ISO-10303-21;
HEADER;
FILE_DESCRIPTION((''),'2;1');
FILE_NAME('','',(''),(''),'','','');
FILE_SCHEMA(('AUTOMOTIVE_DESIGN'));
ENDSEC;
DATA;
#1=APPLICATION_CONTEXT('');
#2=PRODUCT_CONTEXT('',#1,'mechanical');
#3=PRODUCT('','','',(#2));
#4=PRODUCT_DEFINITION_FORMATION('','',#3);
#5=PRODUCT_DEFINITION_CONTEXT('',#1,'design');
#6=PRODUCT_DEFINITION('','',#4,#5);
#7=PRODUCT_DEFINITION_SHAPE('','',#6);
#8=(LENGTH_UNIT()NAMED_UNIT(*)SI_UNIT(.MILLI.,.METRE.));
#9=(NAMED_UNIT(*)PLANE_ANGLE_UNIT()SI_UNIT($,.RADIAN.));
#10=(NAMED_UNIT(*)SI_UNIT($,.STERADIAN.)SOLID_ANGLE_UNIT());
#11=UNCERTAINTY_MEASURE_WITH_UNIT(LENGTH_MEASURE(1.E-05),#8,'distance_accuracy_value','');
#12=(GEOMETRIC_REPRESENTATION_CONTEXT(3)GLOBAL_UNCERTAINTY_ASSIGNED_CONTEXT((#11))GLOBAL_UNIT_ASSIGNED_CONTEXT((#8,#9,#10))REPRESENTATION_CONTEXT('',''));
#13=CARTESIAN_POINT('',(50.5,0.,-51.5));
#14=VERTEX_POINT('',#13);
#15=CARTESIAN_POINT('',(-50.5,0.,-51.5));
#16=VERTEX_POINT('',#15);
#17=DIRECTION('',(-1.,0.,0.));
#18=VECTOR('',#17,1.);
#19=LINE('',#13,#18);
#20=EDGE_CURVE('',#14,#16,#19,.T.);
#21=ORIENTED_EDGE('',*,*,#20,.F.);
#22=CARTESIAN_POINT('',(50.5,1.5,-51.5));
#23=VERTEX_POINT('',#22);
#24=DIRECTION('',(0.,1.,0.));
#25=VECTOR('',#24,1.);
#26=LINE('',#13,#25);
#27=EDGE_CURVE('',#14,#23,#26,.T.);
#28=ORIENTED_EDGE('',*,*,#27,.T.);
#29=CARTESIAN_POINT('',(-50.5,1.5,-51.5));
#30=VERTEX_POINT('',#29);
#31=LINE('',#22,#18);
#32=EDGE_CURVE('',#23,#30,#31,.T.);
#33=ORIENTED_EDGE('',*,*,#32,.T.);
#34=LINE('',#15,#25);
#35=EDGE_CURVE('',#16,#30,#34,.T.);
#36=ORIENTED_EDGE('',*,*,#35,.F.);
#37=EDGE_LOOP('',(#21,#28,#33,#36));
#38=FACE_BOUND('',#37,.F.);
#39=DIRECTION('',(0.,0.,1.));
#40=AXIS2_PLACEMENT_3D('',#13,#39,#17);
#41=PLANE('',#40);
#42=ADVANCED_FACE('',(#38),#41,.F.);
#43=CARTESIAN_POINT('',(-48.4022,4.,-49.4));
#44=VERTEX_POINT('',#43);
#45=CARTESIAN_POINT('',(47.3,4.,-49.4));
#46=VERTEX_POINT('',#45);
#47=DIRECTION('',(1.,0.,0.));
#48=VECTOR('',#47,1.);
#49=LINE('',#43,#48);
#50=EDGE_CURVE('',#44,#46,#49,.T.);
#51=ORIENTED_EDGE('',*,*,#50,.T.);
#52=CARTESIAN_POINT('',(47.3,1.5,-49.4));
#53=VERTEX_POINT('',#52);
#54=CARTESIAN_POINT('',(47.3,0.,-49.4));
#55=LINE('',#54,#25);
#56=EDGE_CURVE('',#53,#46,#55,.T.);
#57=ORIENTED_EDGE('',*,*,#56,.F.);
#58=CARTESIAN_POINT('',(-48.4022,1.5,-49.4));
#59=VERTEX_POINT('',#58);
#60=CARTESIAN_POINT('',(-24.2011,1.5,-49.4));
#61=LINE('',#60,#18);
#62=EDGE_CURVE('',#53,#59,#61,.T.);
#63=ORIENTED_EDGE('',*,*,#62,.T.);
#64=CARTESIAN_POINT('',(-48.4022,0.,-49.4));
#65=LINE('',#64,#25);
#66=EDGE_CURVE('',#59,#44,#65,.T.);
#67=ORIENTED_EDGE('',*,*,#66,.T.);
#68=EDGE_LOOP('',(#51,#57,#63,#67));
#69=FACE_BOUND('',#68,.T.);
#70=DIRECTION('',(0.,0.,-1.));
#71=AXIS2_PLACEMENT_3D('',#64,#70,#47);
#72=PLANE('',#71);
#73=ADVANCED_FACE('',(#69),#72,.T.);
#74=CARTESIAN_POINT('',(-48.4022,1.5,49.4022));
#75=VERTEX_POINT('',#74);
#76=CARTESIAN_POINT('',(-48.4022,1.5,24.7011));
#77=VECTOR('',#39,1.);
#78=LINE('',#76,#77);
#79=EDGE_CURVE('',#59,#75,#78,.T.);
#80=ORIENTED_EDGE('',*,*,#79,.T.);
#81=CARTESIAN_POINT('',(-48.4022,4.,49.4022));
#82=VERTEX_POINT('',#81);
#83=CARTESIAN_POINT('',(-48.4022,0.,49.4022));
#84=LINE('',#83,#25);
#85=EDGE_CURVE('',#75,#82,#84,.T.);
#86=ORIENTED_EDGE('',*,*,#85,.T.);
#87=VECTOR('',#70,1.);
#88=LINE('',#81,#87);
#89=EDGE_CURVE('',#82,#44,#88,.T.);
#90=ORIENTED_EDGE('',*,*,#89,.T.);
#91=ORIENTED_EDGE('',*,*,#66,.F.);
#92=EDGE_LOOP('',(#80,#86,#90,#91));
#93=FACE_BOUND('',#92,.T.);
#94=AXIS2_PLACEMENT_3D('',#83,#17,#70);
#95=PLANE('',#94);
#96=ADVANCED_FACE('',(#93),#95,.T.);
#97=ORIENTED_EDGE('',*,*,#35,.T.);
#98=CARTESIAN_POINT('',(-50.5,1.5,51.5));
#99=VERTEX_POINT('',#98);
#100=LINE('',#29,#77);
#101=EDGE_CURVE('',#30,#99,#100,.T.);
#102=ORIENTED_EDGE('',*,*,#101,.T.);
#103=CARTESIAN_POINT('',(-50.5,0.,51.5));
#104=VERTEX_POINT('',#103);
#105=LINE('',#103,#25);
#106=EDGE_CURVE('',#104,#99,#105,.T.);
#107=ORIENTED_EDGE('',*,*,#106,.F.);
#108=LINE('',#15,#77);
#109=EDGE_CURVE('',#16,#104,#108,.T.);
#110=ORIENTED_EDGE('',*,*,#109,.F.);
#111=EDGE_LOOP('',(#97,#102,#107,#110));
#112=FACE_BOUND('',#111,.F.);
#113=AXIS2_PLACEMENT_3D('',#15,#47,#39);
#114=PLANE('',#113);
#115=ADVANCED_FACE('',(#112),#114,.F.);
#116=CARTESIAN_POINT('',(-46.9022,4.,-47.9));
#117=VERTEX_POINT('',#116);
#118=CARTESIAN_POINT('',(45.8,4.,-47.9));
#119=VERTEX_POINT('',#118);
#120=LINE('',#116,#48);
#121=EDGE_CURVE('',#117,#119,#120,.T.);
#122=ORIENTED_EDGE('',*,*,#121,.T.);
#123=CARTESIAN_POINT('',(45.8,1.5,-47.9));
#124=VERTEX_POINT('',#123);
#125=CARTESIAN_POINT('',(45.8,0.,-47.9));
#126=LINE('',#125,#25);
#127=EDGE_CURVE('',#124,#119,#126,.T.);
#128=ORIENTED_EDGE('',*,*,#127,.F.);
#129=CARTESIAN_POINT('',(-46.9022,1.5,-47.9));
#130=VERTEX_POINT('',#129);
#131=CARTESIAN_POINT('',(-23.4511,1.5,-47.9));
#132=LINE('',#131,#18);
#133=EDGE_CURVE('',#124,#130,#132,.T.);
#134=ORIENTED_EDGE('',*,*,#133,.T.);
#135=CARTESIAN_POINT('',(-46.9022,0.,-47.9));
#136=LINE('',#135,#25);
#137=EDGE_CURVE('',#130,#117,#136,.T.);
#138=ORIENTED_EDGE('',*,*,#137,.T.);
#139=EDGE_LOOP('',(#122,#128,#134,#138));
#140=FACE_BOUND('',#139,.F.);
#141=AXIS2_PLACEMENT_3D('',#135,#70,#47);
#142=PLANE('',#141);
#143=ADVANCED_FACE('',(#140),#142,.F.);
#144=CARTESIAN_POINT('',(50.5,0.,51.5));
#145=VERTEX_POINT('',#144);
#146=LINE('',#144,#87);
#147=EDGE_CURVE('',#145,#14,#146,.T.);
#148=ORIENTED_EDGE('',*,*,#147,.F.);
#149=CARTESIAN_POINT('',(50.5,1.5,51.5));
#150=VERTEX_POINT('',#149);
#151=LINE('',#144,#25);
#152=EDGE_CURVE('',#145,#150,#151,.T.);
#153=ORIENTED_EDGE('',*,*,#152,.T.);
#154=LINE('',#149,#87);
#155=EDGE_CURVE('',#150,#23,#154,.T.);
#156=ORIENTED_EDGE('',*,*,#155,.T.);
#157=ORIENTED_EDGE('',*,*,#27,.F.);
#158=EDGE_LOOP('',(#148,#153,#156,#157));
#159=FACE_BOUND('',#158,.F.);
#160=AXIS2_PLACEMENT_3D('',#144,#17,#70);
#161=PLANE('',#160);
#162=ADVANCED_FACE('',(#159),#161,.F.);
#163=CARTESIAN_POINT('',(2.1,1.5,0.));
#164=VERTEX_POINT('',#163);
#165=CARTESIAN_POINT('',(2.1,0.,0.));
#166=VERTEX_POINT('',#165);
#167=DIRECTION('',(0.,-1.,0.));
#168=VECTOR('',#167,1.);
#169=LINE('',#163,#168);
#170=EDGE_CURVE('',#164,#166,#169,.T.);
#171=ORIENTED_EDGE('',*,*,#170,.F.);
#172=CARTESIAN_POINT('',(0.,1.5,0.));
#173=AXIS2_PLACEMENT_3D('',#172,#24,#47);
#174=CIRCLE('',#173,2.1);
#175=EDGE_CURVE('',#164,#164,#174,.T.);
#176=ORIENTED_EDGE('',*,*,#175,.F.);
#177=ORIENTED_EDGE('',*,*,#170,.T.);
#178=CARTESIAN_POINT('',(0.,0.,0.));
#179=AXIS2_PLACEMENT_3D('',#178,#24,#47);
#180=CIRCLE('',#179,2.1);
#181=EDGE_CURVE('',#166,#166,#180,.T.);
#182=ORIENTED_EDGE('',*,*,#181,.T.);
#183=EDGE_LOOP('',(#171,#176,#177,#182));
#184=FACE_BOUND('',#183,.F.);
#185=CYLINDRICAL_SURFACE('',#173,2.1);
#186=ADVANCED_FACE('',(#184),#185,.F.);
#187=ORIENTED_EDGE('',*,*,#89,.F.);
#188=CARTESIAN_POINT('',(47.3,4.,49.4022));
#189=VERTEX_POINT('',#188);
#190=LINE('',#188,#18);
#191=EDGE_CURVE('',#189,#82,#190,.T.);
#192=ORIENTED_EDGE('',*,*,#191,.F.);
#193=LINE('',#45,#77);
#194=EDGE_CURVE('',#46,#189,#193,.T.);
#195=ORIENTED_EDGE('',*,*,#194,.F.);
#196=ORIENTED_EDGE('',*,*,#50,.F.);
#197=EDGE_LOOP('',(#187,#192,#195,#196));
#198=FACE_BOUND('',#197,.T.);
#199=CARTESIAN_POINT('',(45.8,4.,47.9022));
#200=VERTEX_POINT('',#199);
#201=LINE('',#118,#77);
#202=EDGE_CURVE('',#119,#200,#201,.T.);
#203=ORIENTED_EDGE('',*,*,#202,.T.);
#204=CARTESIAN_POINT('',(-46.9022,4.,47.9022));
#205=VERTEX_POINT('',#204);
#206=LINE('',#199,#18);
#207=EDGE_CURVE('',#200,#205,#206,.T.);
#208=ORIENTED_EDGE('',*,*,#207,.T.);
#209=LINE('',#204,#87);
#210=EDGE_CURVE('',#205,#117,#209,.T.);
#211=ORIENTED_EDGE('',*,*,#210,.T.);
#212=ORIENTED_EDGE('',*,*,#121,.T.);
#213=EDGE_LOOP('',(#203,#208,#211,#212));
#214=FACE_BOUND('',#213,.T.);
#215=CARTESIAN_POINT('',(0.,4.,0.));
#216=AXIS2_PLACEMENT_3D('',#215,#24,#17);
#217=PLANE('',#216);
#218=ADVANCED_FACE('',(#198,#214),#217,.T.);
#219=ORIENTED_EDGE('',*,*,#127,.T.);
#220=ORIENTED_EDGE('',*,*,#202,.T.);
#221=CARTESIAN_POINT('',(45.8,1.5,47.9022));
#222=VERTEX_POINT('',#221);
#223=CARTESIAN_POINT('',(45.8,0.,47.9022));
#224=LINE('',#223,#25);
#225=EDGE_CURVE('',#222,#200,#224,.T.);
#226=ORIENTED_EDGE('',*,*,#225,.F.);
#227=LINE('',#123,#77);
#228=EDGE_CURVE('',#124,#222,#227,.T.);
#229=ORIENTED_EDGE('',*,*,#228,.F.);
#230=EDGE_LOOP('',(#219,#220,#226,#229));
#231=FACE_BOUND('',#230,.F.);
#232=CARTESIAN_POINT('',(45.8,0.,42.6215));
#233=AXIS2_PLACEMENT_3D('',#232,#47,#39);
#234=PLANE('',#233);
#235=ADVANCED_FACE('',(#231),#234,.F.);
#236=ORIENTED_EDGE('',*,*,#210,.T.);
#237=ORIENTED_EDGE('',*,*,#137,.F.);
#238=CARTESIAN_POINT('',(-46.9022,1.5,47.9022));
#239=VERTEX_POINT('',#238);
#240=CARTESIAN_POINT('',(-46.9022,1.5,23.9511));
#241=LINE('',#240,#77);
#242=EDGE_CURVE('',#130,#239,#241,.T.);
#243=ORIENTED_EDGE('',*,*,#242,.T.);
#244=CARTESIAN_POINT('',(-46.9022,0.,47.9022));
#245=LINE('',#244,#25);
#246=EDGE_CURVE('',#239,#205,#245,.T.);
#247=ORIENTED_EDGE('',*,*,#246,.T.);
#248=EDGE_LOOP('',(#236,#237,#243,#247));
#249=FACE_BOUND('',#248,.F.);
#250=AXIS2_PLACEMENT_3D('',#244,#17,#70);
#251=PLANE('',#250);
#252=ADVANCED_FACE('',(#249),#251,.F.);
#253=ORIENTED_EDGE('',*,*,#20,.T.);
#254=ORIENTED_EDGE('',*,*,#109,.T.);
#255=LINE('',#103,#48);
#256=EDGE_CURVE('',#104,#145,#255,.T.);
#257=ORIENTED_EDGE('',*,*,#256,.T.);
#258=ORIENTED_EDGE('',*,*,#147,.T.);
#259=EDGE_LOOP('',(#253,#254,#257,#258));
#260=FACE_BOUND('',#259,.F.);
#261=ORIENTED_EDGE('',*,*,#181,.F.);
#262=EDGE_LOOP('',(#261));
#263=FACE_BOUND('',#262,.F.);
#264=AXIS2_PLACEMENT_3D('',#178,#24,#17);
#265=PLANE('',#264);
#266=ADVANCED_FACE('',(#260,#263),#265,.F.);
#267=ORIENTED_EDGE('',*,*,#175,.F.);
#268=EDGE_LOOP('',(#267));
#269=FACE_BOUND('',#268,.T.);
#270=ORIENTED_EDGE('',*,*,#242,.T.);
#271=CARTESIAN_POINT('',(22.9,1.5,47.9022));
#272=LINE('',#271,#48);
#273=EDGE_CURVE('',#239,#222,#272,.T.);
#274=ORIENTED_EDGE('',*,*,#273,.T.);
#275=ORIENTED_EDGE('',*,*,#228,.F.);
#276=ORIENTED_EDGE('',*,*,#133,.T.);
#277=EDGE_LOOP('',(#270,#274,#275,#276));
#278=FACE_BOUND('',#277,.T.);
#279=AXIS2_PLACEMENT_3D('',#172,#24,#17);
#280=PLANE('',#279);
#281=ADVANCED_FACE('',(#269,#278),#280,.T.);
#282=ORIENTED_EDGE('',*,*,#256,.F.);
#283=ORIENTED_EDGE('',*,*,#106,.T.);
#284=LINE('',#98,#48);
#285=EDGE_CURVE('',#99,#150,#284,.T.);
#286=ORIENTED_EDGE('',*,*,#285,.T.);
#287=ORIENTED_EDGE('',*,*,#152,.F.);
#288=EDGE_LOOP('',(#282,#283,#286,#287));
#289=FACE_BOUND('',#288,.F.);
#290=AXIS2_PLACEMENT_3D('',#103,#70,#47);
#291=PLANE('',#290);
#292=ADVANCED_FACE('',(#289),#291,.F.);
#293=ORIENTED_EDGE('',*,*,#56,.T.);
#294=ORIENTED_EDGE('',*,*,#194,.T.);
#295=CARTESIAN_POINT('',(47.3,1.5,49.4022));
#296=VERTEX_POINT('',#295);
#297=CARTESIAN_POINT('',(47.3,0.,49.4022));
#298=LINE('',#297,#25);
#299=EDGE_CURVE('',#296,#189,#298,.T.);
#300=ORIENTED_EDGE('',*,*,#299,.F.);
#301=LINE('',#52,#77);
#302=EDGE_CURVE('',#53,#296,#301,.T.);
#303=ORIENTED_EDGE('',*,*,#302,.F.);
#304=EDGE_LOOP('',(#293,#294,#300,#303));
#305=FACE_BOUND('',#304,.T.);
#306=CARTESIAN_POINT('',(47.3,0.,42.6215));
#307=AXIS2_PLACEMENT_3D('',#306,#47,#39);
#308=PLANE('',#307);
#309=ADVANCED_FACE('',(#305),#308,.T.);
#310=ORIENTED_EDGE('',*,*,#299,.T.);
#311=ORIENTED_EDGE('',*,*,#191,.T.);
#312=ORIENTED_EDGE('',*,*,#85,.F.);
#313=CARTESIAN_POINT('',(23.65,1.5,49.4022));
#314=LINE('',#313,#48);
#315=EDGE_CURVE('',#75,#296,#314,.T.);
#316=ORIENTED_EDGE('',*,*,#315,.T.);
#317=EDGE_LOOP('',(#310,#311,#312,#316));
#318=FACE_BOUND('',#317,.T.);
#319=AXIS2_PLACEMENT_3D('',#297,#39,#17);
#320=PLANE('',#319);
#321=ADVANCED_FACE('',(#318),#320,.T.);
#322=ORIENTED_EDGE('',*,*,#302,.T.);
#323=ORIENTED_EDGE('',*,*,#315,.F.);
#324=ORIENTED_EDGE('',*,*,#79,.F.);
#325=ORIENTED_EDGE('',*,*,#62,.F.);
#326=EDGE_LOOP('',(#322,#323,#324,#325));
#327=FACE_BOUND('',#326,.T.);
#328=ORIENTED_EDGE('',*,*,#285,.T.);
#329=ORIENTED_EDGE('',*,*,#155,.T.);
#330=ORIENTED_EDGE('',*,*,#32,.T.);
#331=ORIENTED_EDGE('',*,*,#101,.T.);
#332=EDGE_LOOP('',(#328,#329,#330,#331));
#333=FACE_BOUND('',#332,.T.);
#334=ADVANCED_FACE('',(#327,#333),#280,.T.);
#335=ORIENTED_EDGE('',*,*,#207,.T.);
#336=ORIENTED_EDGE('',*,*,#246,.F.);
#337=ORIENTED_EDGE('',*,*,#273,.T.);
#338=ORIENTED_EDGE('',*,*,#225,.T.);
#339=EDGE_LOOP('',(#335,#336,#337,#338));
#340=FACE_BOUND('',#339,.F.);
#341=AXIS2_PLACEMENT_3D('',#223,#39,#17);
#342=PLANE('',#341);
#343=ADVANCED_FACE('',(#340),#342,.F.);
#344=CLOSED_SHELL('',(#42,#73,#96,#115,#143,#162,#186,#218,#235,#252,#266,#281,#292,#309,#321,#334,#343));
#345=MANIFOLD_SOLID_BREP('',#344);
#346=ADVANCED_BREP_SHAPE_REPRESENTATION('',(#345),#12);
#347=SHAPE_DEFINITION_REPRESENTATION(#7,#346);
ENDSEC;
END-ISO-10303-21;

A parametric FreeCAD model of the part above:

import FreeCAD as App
import Part
import Sketcher
from FreeCAD import Vector

doc = App.newDocument("Part")
body = doc.addObject("PartDesign::Body", "Body")

sketch1 = doc.addObject("Sketcher::SketchObject", "Sketch")
body.addObject(sketch1)
sketch1.AttachmentSupport = (doc.XZ_Plane, [""])
sketch1.MapMode = "FlatFace"
sketch1.addGeometry([
    Part.LineSegment(Vector(-50.5, -51.5, 0), Vector(-50.5, 51.5, 0)),
    Part.LineSegment(Vector(-50.5, 51.5, 0), Vector(50.5, 51.5, 0)),
    Part.LineSegment(Vector(50.5, 51.5, 0), Vector(50.5, -51.5, 0)),
    Part.LineSegment(Vector(50.5, -51.5, 0), Vector(-50.5, -51.5, 0)),
], False)
sketch1.addConstraint([
    Sketcher.Constraint("Coincident", 0, 2, 1, 1),
    Sketcher.Constraint("Coincident", 1, 2, 2, 1),
    Sketcher.Constraint("Coincident", 2, 2, 3, 1),
    Sketcher.Constraint("Coincident", 3, 2, 0, 1),
    Sketcher.Constraint("Vertical", 0),
    Sketcher.Constraint("Horizontal", 1),
    Sketcher.Constraint("Vertical", 2),
    Sketcher.Constraint("Horizontal", 3),
    Sketcher.Constraint("Symmetric", 0, 2, 2, 2, -1, 1),
    Sketcher.Constraint("DistanceX", 1, 1, 1, 2, 101.0),
    Sketcher.Constraint("DistanceY", 0, 1, 0, 2, 103.0),
])
pad1 = doc.addObject("PartDesign::Pad", "Pad")
body.addObject(pad1)
pad1.Profile = sketch1
pad1.Length = 1.5
pad1.Reversed = True

sketch2 = doc.addObject("Sketcher::SketchObject", "Sketch001")
body.addObject(sketch2)
sketch2.AttachmentSupport = (doc.XZ_Plane, [""])
sketch2.MapMode = "FlatFace"
sketch2.addGeometry([
    Part.LineSegment(Vector(47.3, -49.4, 0), Vector(-48.4022, -49.4, 0)),
    Part.LineSegment(Vector(-48.4022, -49.4, 0), Vector(-48.4022, 49.4022, 0)),
    Part.LineSegment(Vector(-48.4022, 49.4022, 0), Vector(47.3, 49.4022, 0)),
    Part.LineSegment(Vector(47.3, 49.4022, 0), Vector(47.3, -49.4, 0)),
    Part.LineSegment(Vector(-46.9022, 47.9022, 0), Vector(-46.9022, -47.9, 0)),
    Part.LineSegment(Vector(-46.9022, -47.9, 0), Vector(45.8, -47.9, 0)),
    Part.LineSegment(Vector(45.8, -47.9, 0), Vector(45.8, 47.9022, 0)),
    Part.LineSegment(Vector(45.8, 47.9022, 0), Vector(-46.9022, 47.9022, 0)),
], False)
sketch2.addConstraint([
    Sketcher.Constraint("Coincident", 0, 2, 1, 1),
    Sketcher.Constraint("Coincident", 1, 2, 2, 1),
    Sketcher.Constraint("Coincident", 2, 2, 3, 1),
    Sketcher.Constraint("Coincident", 3, 2, 0, 1),
    Sketcher.Constraint("Coincident", 4, 2, 5, 1),
    Sketcher.Constraint("Coincident", 5, 2, 6, 1),
    Sketcher.Constraint("Coincident", 6, 2, 7, 1),
    Sketcher.Constraint("Coincident", 7, 2, 4, 1),
    Sketcher.Constraint("Horizontal", 0),
    Sketcher.Constraint("Vertical", 1),
    Sketcher.Constraint("Horizontal", 2),
    Sketcher.Constraint("Vertical", 3),
    Sketcher.Constraint("Vertical", 4),
    Sketcher.Constraint("Horizontal", 5),
    Sketcher.Constraint("Vertical", 6),
    Sketcher.Constraint("Horizontal", 7),
    Sketcher.Constraint("DistanceX", 0, 2, 4, 2, 1.5),
    Sketcher.Constraint("DistanceY", 0, 2, 4, 2, 1.5),
    Sketcher.Constraint("DistanceX", 5, 2, 3, 2, 1.5),
    Sketcher.Constraint("DistanceY", 6, 2, 2, 2, 1.5),
    Sketcher.Constraint("DistanceY", 0, 2, -1, 1, 49.4),
    Sketcher.Constraint("DistanceX", -1, 1, 2, 2, 47.3),
    Sketcher.Constraint("DistanceX", 0, 2, 0, 1, 95.7022),
    Sketcher.Constraint("DistanceY", 1, 1, 1, 2, 98.8022),
])
pad2 = doc.addObject("PartDesign::Pad", "Pad001")
body.addObject(pad2)
pad2.Profile = sketch2
pad2.Length = 4
pad2.Reversed = True

sketch3 = doc.addObject("Sketcher::SketchObject", "Sketch002")
body.addObject(sketch3)
sketch3.AttachmentSupport = (doc.XZ_Plane, [""])
sketch3.MapMode = "FlatFace"
sketch3.AttachmentOffset = App.Placement(Vector(0, 0, -1.5), App.Rotation())
sketch3.addGeometry(Part.Circle(Vector(0, 0, 0), Vector(0, 0, 1), 2.1), False)
sketch3.addConstraint([
    Sketcher.Constraint("Coincident", 0, 3, -1, 1),
    Sketcher.Constraint("Diameter", 0, 4.2),
])
pocket1 = doc.addObject("PartDesign::Pocket", "Pocket")
body.addObject(pocket1)
pocket1.Profile = sketch3
pocket1.Length = 4
pocket1.Reversed = True

doc.recompute()
